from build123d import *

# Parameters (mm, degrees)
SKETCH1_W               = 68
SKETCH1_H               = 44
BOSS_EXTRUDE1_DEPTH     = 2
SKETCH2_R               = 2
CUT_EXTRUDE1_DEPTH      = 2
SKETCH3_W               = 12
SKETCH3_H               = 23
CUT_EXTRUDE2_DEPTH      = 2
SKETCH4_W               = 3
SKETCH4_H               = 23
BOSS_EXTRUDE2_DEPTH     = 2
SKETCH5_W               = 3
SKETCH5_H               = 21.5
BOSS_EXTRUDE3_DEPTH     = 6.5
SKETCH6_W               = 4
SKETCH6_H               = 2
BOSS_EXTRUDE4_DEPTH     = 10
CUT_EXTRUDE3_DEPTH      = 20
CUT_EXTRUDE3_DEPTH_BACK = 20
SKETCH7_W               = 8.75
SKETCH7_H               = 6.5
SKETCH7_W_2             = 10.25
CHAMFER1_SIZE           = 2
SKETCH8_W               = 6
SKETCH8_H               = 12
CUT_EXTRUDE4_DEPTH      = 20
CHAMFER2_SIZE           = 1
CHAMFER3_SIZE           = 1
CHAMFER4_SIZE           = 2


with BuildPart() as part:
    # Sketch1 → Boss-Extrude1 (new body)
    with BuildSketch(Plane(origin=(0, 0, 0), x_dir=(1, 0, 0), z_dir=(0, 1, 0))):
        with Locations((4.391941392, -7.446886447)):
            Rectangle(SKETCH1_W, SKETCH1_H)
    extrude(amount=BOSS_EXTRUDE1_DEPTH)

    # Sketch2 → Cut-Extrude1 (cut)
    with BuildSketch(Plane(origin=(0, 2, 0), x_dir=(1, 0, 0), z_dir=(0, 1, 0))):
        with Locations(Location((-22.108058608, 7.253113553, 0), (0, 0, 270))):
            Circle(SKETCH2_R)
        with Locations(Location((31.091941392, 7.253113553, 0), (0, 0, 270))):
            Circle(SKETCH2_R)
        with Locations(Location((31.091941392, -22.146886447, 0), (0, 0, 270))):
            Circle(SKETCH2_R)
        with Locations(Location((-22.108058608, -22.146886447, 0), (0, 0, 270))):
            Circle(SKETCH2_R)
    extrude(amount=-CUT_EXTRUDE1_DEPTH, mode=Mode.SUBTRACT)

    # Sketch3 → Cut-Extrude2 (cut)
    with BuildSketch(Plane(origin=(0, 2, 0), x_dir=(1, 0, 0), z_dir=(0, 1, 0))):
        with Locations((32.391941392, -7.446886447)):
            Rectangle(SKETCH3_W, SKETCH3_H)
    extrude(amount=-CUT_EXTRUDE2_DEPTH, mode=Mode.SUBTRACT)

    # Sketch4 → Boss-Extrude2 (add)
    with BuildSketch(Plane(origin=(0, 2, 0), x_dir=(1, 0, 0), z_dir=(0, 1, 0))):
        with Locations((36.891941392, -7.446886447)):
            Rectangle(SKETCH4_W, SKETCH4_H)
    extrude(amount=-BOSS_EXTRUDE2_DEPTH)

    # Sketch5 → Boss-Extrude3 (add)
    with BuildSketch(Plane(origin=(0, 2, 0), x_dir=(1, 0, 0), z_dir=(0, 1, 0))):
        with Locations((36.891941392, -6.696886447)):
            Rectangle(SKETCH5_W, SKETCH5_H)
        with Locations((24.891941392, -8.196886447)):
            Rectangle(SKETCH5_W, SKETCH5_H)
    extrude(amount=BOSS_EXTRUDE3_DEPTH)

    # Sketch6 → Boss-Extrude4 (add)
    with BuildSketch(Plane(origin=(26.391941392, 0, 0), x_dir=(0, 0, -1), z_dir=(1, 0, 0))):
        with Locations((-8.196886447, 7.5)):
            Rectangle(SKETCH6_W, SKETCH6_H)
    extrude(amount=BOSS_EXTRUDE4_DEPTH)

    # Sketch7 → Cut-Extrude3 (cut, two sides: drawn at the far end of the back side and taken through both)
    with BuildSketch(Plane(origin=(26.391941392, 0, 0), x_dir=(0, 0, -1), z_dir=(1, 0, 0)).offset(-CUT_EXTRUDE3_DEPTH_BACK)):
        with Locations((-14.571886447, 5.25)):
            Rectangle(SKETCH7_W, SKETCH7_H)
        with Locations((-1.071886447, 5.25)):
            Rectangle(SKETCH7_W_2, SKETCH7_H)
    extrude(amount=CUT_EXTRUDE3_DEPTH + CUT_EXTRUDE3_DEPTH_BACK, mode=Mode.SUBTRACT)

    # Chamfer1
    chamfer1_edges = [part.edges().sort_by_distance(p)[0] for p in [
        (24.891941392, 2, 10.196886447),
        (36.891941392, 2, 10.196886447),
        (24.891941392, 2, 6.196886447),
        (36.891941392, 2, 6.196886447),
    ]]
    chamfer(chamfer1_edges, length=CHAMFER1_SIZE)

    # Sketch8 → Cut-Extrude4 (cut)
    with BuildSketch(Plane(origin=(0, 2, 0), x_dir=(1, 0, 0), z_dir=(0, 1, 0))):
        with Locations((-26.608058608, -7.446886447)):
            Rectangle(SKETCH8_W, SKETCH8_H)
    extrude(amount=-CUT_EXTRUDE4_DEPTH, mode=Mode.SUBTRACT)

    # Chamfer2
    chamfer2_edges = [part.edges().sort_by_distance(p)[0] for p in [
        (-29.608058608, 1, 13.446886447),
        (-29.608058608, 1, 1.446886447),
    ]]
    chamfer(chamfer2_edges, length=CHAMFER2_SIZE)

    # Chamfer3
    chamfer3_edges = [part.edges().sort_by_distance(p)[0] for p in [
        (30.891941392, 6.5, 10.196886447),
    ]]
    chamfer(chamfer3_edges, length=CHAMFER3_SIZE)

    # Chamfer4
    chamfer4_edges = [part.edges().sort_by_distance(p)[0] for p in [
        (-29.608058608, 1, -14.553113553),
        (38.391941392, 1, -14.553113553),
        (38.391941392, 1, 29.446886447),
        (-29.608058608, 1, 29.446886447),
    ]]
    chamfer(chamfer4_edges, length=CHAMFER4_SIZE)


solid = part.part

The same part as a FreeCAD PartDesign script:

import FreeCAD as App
import Part
import Sketcher
from FreeCAD import Vector


def edges_at(feature, points):
    """Names of the edges that pass closest to the given points."""
    edges = feature.Shape.Edges
    near = lambda p: min(range(len(edges)), key=lambda i: edges[i].distToShape(Part.Vertex(*p))[0])
    return sorted({f"Edge{near(p) + 1}" for p in points})

doc = App.newDocument("Part")
body = doc.addObject("PartDesign::Body", "Body")

sketch1 = body.newObject("Sketcher::SketchObject", "Sketch")
sketch1.AttachmentSupport = (doc.getObject("XZ_Plane"), [""])
sketch1.MapMode = "FlatFace"
sketch1.addGeometry([
    Part.LineSegment(Vector(-29.608059, -14.553114, 0), Vector(-29.608059, 29.446886, 0)),
    Part.LineSegment(Vector(-29.608059, 29.446886, 0), Vector(38.391941, 29.446886, 0)),
    Part.LineSegment(Vector(38.391941, 29.446886, 0), Vector(38.391941, -14.553114, 0)),
    Part.LineSegment(Vector(38.391941, -14.553114, 0), Vector(-29.608059, -14.553114, 0)),
], False)
sketch1.addConstraint([
    Sketcher.Constraint("Coincident", 0, 2, 1, 1),
    Sketcher.Constraint("Coincident", 1, 2, 2, 1),
    Sketcher.Constraint("Coincident", 2, 2, 3, 1),
    Sketcher.Constraint("Coincident", 3, 2, 0, 1),
    Sketcher.Constraint("Vertical", 0),
    Sketcher.Constraint("Horizontal", 1),
    Sketcher.Constraint("Vertical", 2),
    Sketcher.Constraint("Horizontal", 3),
    Sketcher.Constraint("DistanceX", 1, 1, 1, 2, 68.0),
    Sketcher.Constraint("DistanceY", 0, 1, 0, 2, 44.0),
    Sketcher.Constraint("DistanceX", 0, 2, -1, 1, 29.608059),
    Sketcher.Constraint("DistanceY", -1, 1, 0, 2, 29.446886),
])
pad1 = body.newObject("PartDesign::Pad", "Pad")
pad1.Profile = sketch1
pad1.Length = 2
pad1.Reversed = True

sketch2 = body.newObject("Sketcher::SketchObject", "Sketch001")
sketch2.AttachmentSupport = (doc.getObject("XZ_Plane"), [""])
sketch2.MapMode = "FlatFace"
sketch2.AttachmentOffset = App.Placement(Vector(0, 0, -2), App.Rotation())
sketch2.addGeometry([
    Part.Circle(Vector(-22.108059, -7.253114, 0), Vector(0, 0, 1), 2),
    Part.Circle(Vector(31.091941, -7.253114, 0), Vector(0, 0, 1), 2),
    Part.Circle(Vector(31.091941, 22.146886, 0), Vector(0, 0, 1), 2),
    Part.Circle(Vector(-22.108059, 22.146886, 0), Vector(0, 0, 1), 2),
], False)
sketch2.addConstraint([
    Sketcher.Constraint("Equal", 0, 1),
    Sketcher.Constraint("Equal", 1, 2),
    Sketcher.Constraint("Equal", 2, 3),
    Sketcher.Constraint("Horizontal", 0, 3, 1, 3),
    Sketcher.Constraint("Horizontal", 2, 3, 3, 3),
    Sketcher.Constraint("Vertical", 1, 3, 2, 3),
    Sketcher.Constraint("Vertical", 0, 3, 3, 3),
    Sketcher.Constraint("Diameter", 0, 4.0),
    Sketcher.Constraint("DistanceX", 0, 3, 1, 3, 53.2),
    Sketcher.Constraint("DistanceY", 1, 3, 2, 3, 29.4),
    Sketcher.Constraint("DistanceX", 0, 3, -1, 1, 22.108059),
    Sketcher.Constraint("DistanceY", 0, 3, -1, 1, 7.253114),
])
pocket1 = body.newObject("PartDesign::Pocket", "Pocket")
pocket1.Profile = sketch2
pocket1.Length = 2
pocket1.Reversed = True

sketch3 = body.newObject("Sketcher::SketchObject", "Sketch002")
sketch3.AttachmentSupport = (doc.getObject("XZ_Plane"), [""])
sketch3.MapMode = "FlatFace"
sketch3.AttachmentOffset = App.Placement(Vector(0, 0, -2), App.Rotation())
sketch3.addGeometry([
    Part.LineSegment(Vector(26.391941, -4.053114, 0), Vector(26.391941, 18.946886, 0)),
    Part.LineSegment(Vector(26.391941, 18.946886, 0), Vector(38.391941, 18.946886, 0)),
    Part.LineSegment(Vector(38.391941, 18.946886, 0), Vector(38.391941, -4.053114, 0)),
    Part.LineSegment(Vector(38.391941, -4.053114, 0), Vector(26.391941, -4.053114, 0)),
], False)
sketch3.addConstraint([
    Sketcher.Constraint("Coincident", 0, 2, 1, 1),
    Sketcher.Constraint("Coincident", 1, 2, 2, 1),
    Sketcher.Constraint("Coincident", 2, 2, 3, 1),
    Sketcher.Constraint("Coincident", 3, 2, 0, 1),
    Sketcher.Constraint("Vertical", 0),
    Sketcher.Constraint("Horizontal", 1),
    Sketcher.Constraint("Vertical", 2),
    Sketcher.Constraint("Horizontal", 3),
    Sketcher.Constraint("DistanceX", 1, 1, 1, 2, 12.0),
    Sketcher.Constraint("DistanceY", 0, 1, 0, 2, 23.0),
    Sketcher.Constraint("DistanceX", -1, 1, 0, 2, 26.391941),
    Sketcher.Constraint("DistanceY", -1, 1, 0, 2, 18.946886),
])
pocket2 = body.newObject("PartDesign::Pocket", "Pocket001")
pocket2.Profile = sketch3
pocket2.Length = 2
pocket2.Reversed = True

sketch4 = body.newObject("Sketcher::SketchObject", "Sketch003")
sketch4.AttachmentSupport = (doc.getObject("XZ_Plane"), [""])
sketch4.MapMode = "FlatFace"
sketch4.AttachmentOffset = App.Placement(Vector(0, 0, -2), App.Rotation())
sketch4.addGeometry([
    Part.LineSegment(Vector(35.391941, -4.053114, 0), Vector(35.391941, 18.946886, 0)),
    Part.LineSegment(Vector(35.391941, 18.946886, 0), Vector(38.391941, 18.946886, 0)),
    Part.LineSegment(Vector(38.391941, 18.946886, 0), Vector(38.391941, -4.053114, 0)),
    Part.LineSegment(Vector(38.391941, -4.053114, 0), Vector(35.391941, -4.053114, 0)),
], False)
sketch4.addConstraint([
    Sketcher.Constraint("Coincident", 0, 2, 1, 1),
    Sketcher.Constraint("Coincident", 1, 2, 2, 1),
    Sketcher.Constraint("Coincident", 2, 2, 3, 1),
    Sketcher.Constraint("Coincident", 3, 2, 0, 1),
    Sketcher.Constraint("Vertical", 0),
    Sketcher.Constraint("Horizontal", 1),
    Sketcher.Constraint("Vertical", 2),
    Sketcher.Constraint("Horizontal", 3),
    Sketcher.Constraint("DistanceX", 1, 1, 1, 2, 3.0),
    Sketcher.Constraint("DistanceY", 0, 1, 0, 2, 23.0),
    Sketcher.Constraint("DistanceX", -1, 1, 0, 2, 35.391941),
    Sketcher.Constraint("DistanceY", -1, 1, 0, 2, 18.946886),
])
pad2 = body.newObject("PartDesign::Pad", "Pad001")
pad2.Profile = sketch4
pad2.Length = 2

sketch5 = body.newObject("Sketcher::SketchObject", "Sketch004")
sketch5.AttachmentSupport = (doc.getObject("XZ_Plane"), [""])
sketch5.MapMode = "FlatFace"
sketch5.AttachmentOffset = App.Placement(Vector(0, 0, -2), App.Rotation())
sketch5.addGeometry([
    Part.LineSegment(Vector(35.391941, -4.053114, 0), Vector(35.391941, 17.446886, 0)),
    Part.LineSegment(Vector(35.391941, 17.446886, 0), Vector(38.391941, 17.446886, 0)),
    Part.LineSegment(Vector(38.391941, 17.446886, 0), Vector(38.391941, -4.053114, 0)),
    Part.LineSegment(Vector(38.391941, -4.053114, 0), Vector(35.391941, -4.053114, 0)),
    Part.LineSegment(Vector(23.391941, -2.553114, 0), Vector(23.391941, 18.946886, 0)),
    Part.LineSegment(Vector(23.391941, 18.946886, 0), Vector(26.391941, 18.946886, 0)),
    Part.LineSegment(Vector(26.391941, 18.946886, 0), Vector(26.391941, -2.553114, 0)),
    Part.LineSegment(Vector(26.391941, -2.553114, 0), Vector(23.391941, -2.553114, 0)),
], False)
sketch5.addConstraint([
    Sketcher.Constraint("Coincident", 0, 2, 1, 1),
    Sketcher.Constraint("Coincident", 1, 2, 2, 1),
    Sketcher.Constraint("Coincident", 2, 2, 3, 1),
    Sketcher.Constraint("Coincident", 3, 2, 0, 1),
    Sketcher.Constraint("Coincident", 4, 2, 5, 1),
    Sketcher.Constraint("Coincident", 5, 2, 6, 1),
    Sketcher.Constraint("Coincident", 6, 2, 7, 1),
    Sketcher.Constraint("Coincident", 7, 2, 4, 1),
    Sketcher.Constraint("Vertical", 0),
    Sketcher.Constraint("Horizontal", 1),
    Sketcher.Constraint("Vertical", 2),
    Sketcher.Constraint("Horizontal", 3),
    Sketcher.Constraint("Vertical", 4),
    Sketcher.Constraint("Horizontal", 5),
    Sketcher.Constraint("Vertical", 6),
    Sketcher.Constraint("Horizontal", 7),
    Sketcher.Constraint("Equal", 3, 5),
    Sketcher.Constraint("Equal", 2, 4),
    Sketcher.Constraint("DistanceX", 1, 1, 1, 2, 3.0),
    Sketcher.Constraint("DistanceY", 0, 1, 0, 2, 21.5),
    Sketcher.Constraint("DistanceX", 4, 2, 0, 2, 12.0),
    Sketcher.Constraint("DistanceY", 3, 2, 4, 2, 23.0),
    Sketcher.Constraint("DistanceX", -1, 1, 0, 2, 35.391941),
    Sketcher.Constraint("DistanceY", -1, 1, 0, 2, 17.446886),
])
pad3 = body.newObject("PartDesign::Pad", "Pad002")
pad3.Profile = sketch5
pad3.Length = 6.5
pad3.Reversed = True

sketch6 = body.newObject("Sketcher::SketchObject", "Sketch005")
sketch6.AttachmentSupport = (doc.getObject("YZ_Plane"), [""])
sketch6.MapMode = "FlatFace"
sketch6.AttachmentOffset = App.Placement(Vector(0, 0, 26.391941), App.Rotation())
sketch6.addGeometry([
    Part.LineSegment(Vector(8.5, 10.196886, 0), Vector(6.5, 10.196886, 0)),
    Part.LineSegment(Vector(6.5, 10.196886, 0), Vector(6.5, 6.196886, 0)),
    Part.LineSegment(Vector(6.5, 6.196886, 0), Vector(8.5, 6.196886, 0)),
    Part.LineSegment(Vector(8.5, 6.196886, 0), Vector(8.5, 10.196886, 0)),
], False)
sketch6.addConstraint([
    Sketcher.Constraint("Coincident", 0, 2, 1, 1),
    Sketcher.Constraint("Coincident", 1, 2, 2, 1),
    Sketcher.Constraint("Coincident", 2, 2, 3, 1),
    Sketcher.Constraint("Coincident", 3, 2, 0, 1),
    Sketcher.Constraint("Horizontal", 0),
    Sketcher.Constraint("Vertical", 1),
    Sketcher.Constraint("Horizontal", 2),
    Sketcher.Constraint("Vertical", 3),
    Sketcher.Constraint("DistanceX", 0, 2, 0, 1, 2.0),
    Sketcher.Constraint("DistanceY", 1, 2, 1, 1, 4.0),
    Sketcher.Constraint("DistanceX", -1, 1, 0, 2, 6.5),
    Sketcher.Constraint("DistanceY", -1, 1, 0, 2, 10.196886),
])
pad4 = body.newObject("PartDesign::Pad", "Pad003")
pad4.Profile = sketch6
pad4.Length = 10

sketch7 = body.newObject("Sketcher::SketchObject", "Sketch006")
sketch7.AttachmentSupport = (doc.getObject("YZ_Plane"), [""])
sketch7.MapMode = "FlatFace"
sketch7.AttachmentOffset = App.Placement(Vector(0, 0, 26.391941), App.Rotation())
sketch7.addGeometry([
    Part.LineSegment(Vector(8.5, 18.946886, 0), Vector(2, 18.946886, 0)),
    Part.LineSegment(Vector(2, 18.946886, 0), Vector(2, 10.196886, 0)),
    Part.LineSegment(Vector(2, 10.196886, 0), Vector(8.5, 10.196886, 0)),
    Part.LineSegment(Vector(8.5, 10.196886, 0), Vector(8.5, 18.946886, 0)),
    Part.LineSegment(Vector(8.5, 6.196886, 0), Vector(2, 6.196886, 0)),
    Part.LineSegment(Vector(2, 6.196886, 0), Vector(2, -4.053114, 0)),
    Part.LineSegment(Vector(2, -4.053114, 0), Vector(8.5, -4.053114, 0)),
    Part.LineSegment(Vector(8.5, -4.053114, 0), Vector(8.5, 6.196886, 0)),
], False)
sketch7.addConstraint([
    Sketcher.Constraint("Coincident", 0, 2, 1, 1),
    Sketcher.Constraint("Coincident", 1, 2, 2, 1),
    Sketcher.Constraint("Coincident", 2, 2, 3, 1),
    Sketcher.Constraint("Coincident", 3, 2, 0, 1),
    Sketcher.Constraint("Coincident", 4, 2, 5, 1),
    Sketcher.Constraint("Coincident", 5, 2, 6, 1),
    Sketcher.Constraint("Coincident", 6, 2, 7, 1),
    Sketcher.Constraint("Coincident", 7, 2, 4, 1),
    Sketcher.Constraint("Horizontal", 0),
    Sketcher.Constraint("Vertical", 1),
    Sketcher.Constraint("Horizontal", 2),
    Sketcher.Constraint("Vertical", 3),
    Sketcher.Constraint("Horizontal", 4),
    Sketcher.Constraint("Vertical", 5),
    Sketcher.Constraint("Horizontal", 6),
    Sketcher.Constraint("Vertical", 7),
    Sketcher.Constraint("Vertical", 1, 2, 4, 2),
    Sketcher.Constraint("Vertical", 3, 2, 6, 2),
    Sketcher.Constraint("DistanceX", 0, 2, 0, 1, 6.5),
    Sketcher.Constraint("DistanceX", -1, 1, 0, 2, 2.0),
    Sketcher.Constraint("DistanceY", 4, 2, 1, 2, 4.0),
    Sketcher.Constraint("DistanceY", 5, 2, 0, 2, 23.0),
    Sketcher.Constraint("DistanceY", 1, 2, 1, 1, 8.75),
    Sketcher.Constraint("DistanceY", -1, 1, 0, 2, 18.946886),
])
pocket3 = body.newObject("PartDesign::Pocket", "Pocket002")
pocket3.Profile = sketch7
pocket3.Type = "ThroughAll"
pocket3.Midplane = True
doc.recompute()

chamfer = body.newObject("PartDesign::Chamfer", "Chamfer")
chamfer.Base = (pocket3, edges_at(pocket3, [
    (24.892, 2, 10.197),
    (36.892, 2, 10.197),
    (24.892, 2, 6.197),
    (36.892, 2, 6.197),
]))
chamfer.Size = 2

sketch8 = body.newObject("Sketcher::SketchObject", "Sketch007")
sketch8.AttachmentSupport = (doc.getObject("XZ_Plane"), [""])
sketch8.MapMode = "FlatFace"
sketch8.AttachmentOffset = App.Placement(Vector(0, 0, -2), App.Rotation())
sketch8.addGeometry([
    Part.LineSegment(Vector(-29.608059, 1.446886, 0), Vector(-29.608059, 13.446886, 0)),
    Part.LineSegment(Vector(-29.608059, 13.446886, 0), Vector(-23.608059, 13.446886, 0)),
    Part.LineSegment(Vector(-23.608059, 13.446886, 0), Vector(-23.608059, 1.446886, 0)),
    Part.LineSegment(Vector(-23.608059, 1.446886, 0), Vector(-29.608059, 1.446886, 0)),
], False)
sketch8.addConstraint([
    Sketcher.Constraint("Coincident", 0, 2, 1, 1),
    Sketcher.Constraint("Coincident", 1, 2, 2, 1),
    Sketcher.Constraint("Coincident", 2, 2, 3, 1),
    Sketcher.Constraint("Coincident", 3, 2, 0, 1),
    Sketcher.Constraint("Vertical", 0),
    Sketcher.Constraint("Horizontal", 1),
    Sketcher.Constraint("Vertical", 2),
    Sketcher.Constraint("Horizontal", 3),
    Sketcher.Constraint("DistanceX", 1, 1, 1, 2, 6.0),
    Sketcher.Constraint("DistanceY", 0, 1, 0, 2, 12.0),
    Sketcher.Constraint("DistanceX", 0, 2, -1, 1, 29.608059),
    Sketcher.Constraint("DistanceY", -1, 1, 0, 2, 13.446886),
])
pocket4 = body.newObject("PartDesign::Pocket", "Pocket003")
pocket4.Profile = sketch8
pocket4.Length = 20
pocket4.Reversed = True
doc.recompute()

chamfer2 = body.newObject("PartDesign::Chamfer", "Chamfer001")
chamfer2.Base = (pocket4, edges_at(pocket4, [(-29.608, 1, 13.447), (-29.608, 1, 1.447)]))
chamfer2.Size = 1
doc.recompute()

chamfer3 = body.newObject("PartDesign::Chamfer", "Chamfer002")
chamfer3.Base = (chamfer2, edges_at(chamfer2, [(30.892, 6.5, 10.197)]))
chamfer3.Size = 1
doc.recompute()

chamfer4 = body.newObject("PartDesign::Chamfer", "Chamfer003")
chamfer4.Base = (chamfer3, edges_at(chamfer3, [
    (-29.608, 1, -14.553),
    (38.392, 1, -14.553),
    (38.392, 1, 29.447),
    (-29.608, 1, 29.447),
]))
chamfer4.Size = 2

doc.recompute()
